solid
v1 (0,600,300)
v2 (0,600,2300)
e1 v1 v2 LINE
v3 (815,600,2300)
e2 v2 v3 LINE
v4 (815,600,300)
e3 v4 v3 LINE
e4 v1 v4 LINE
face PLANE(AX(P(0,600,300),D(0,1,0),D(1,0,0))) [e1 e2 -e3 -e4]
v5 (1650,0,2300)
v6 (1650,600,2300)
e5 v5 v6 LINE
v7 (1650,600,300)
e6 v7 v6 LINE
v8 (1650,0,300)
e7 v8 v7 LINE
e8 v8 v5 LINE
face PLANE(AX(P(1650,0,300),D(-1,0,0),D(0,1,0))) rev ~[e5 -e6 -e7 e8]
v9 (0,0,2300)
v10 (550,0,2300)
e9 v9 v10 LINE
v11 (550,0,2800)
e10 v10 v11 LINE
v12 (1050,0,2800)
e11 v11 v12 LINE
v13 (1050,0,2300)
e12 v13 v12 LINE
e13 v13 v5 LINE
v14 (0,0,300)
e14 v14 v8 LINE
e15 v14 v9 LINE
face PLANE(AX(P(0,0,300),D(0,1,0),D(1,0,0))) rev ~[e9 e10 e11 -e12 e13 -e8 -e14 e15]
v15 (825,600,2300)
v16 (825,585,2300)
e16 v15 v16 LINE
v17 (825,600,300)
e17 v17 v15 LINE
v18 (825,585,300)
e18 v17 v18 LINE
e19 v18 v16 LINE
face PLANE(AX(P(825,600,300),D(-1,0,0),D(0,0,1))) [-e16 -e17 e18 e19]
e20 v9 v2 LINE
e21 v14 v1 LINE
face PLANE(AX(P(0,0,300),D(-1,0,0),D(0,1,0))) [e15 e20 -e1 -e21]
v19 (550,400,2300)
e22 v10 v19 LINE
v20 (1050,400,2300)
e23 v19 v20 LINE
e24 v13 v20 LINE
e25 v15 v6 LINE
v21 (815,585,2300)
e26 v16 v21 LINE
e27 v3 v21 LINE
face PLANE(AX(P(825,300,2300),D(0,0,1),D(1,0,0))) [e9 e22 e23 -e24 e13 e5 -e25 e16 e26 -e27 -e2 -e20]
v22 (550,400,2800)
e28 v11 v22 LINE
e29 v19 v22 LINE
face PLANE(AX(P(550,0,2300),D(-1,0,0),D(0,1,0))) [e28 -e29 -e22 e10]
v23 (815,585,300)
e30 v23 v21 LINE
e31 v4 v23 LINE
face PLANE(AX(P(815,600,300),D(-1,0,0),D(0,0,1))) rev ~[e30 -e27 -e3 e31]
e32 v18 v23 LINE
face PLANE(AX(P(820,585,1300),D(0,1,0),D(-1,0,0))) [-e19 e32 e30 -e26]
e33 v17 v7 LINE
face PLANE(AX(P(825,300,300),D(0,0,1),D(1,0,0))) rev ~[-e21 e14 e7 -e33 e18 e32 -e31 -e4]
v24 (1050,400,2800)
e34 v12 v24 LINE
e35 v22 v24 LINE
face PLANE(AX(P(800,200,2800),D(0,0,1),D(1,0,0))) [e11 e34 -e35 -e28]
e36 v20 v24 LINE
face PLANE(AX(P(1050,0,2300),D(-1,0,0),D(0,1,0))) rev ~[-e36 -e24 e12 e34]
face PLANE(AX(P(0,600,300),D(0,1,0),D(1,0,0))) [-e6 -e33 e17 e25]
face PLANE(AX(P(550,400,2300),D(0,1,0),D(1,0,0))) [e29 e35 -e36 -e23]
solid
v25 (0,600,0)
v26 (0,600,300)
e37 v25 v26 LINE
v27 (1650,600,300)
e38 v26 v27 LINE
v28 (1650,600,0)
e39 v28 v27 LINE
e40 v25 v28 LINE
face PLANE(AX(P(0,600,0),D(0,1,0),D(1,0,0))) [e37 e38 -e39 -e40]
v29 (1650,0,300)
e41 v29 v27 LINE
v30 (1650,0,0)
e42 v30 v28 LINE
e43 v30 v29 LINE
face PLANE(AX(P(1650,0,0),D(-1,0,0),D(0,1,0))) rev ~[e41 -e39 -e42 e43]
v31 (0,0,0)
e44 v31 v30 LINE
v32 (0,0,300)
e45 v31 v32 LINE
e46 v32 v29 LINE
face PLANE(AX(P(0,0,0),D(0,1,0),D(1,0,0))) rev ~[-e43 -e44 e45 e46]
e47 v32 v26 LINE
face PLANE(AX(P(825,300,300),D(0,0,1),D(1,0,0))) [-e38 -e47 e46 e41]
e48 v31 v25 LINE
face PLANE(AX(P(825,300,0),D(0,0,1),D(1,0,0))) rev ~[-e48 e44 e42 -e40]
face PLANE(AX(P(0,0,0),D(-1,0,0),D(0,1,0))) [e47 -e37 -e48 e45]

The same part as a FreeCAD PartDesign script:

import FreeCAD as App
import Part
import Sketcher
Q = App.Units.Quantity


def add_polygon(sketch, points):
    """Adds a closed chain of lines whose ends are joined by coincident constraints."""
    first, n = sketch.GeometryCount, len(points)
    for a, b in zip(points, points[1:] + points[:1]):
        sketch.addGeometry(Part.LineSegment(App.Vector(*a, 0), App.Vector(*b, 0)), False)
    for i in range(n):
        sketch.addConstraint(Sketcher.Constraint("Coincident", first + i, 2, first + (i + 1) % n, 1))

doc = App.newDocument("Part")
params = doc.addObject("Spreadsheet::Sheet", "Params")
for row, (alias, value) in enumerate([
    ("sketch1_width", "1650 mm"),
    ("sketch1_height", "600 mm"),
    ("pad1_length", "300 mm"),
    ("sketch2_width", "1650 mm"),
    ("sketch2_height", "600 mm"),
    ("pad2_length", "2000 mm"),
    ("sketch3_width", "10 mm"),
    ("sketch3_height", "2000 mm"),
    ("pocket1_length", "15 mm"),
    ("sketch4_width", "500 mm"),
    ("sketch4_height", "400 mm"),
    ("pad3_length", "500 mm"),
], start=1):
    params.set(f"A{row}", alias)
    params.set(f"B{row}", "=" + value)
    params.setAlias(f"B{row}", alias)

body = doc.addObject("PartDesign::Body", "Body")

sketch1 = body.newObject("Sketcher::SketchObject", "Sketch")
sketch1.AttachmentSupport = (doc.getObject("XY_Plane"), [""])
sketch1.MapMode = "FlatFace"
add_polygon(sketch1, [(0, 600), (0, 0), (1650, 0), (1650, 600)])
sketch1.addConstraint([
    Sketcher.Constraint("Vertical", 0),
    Sketcher.Constraint("Horizontal", 1),
    Sketcher.Constraint("Vertical", 2),
    Sketcher.Constraint("Horizontal", 3),
    Sketcher.Constraint("Coincident", 0, 2, -1, 1),
    Sketcher.Constraint("DistanceX", 1, 1, 1, 2, Q("1650 mm")),
    Sketcher.Constraint("DistanceY", 0, 2, 0, 1, Q("600 mm")),
])
sketch1.setExpression("Constraints[9]", "Params.sketch1_width")
sketch1.setExpression("Constraints[10]", "Params.sketch1_height")
pad1 = body.newObject("PartDesign::Pad", "Pad")
pad1.Profile = sketch1
pad1.setExpression("Length", "Params.pad1_length")
body2 = doc.addObject("PartDesign::Body", "Body001")

sketch2 = body2.newObject("Sketcher::SketchObject", "Sketch001")
sketch2.AttachmentSupport = (doc.getObject("XY_Plane001"), [""])
sketch2.MapMode = "FlatFace"
sketch2.AttachmentOffset = App.Placement(App.Vector(0, 0, 300), App.Rotation())
add_polygon(sketch2, [(0, 600), (0, 0), (1650, 0), (1650, 600)])
sketch2.addConstraint([
    Sketcher.Constraint("Vertical", 0),
    Sketcher.Constraint("Horizontal", 1),
    Sketcher.Constraint("Vertical", 2),
    Sketcher.Constraint("Horizontal", 3),
    Sketcher.Constraint("Coincident", 0, 2, -1, 1),
    Sketcher.Constraint("DistanceX", 1, 1, 1, 2, Q("1650 mm")),
    Sketcher.Constraint("DistanceY", 0, 2, 0, 1, Q("600 mm")),
])
sketch2.setExpression("Constraints[9]", "Params.sketch2_width")
sketch2.setExpression("Constraints[10]", "Params.sketch2_height")
pad2 = body2.newObject("PartDesign::Pad", "Pad001")
pad2.Profile = sketch2
pad2.setExpression("Length", "Params.pad2_length")

sketch3 = body2.newObject("Sketcher::SketchObject", "Sketch002")
sketch3.AttachmentSupport = (doc.getObject("XZ_Plane001"), [""])
sketch3.MapMode = "FlatFace"
sketch3.AttachmentOffset = App.Placement(App.Vector(0, 0, -600), App.Rotation())
add_polygon(sketch3, [(825, 2300), (825, 300), (815, 300), (815, 2300)])
sketch3.addConstraint([
    Sketcher.Constraint("Vertical", 0),
    Sketcher.Constraint("Horizontal", 1),
    Sketcher.Constraint("Vertical", 2),
    Sketcher.Constraint("Horizontal", 3),
    Sketcher.Constraint("DistanceX", 1, 2, 1, 1, Q("10 mm")),
    Sketcher.Constraint("DistanceY", 0, 2, 0, 1, Q("2000 mm")),
    Sketcher.Constraint("DistanceX", -1, 1, 0, 2, Q("825 mm")),
    Sketcher.Constraint("DistanceY", -1, 1, 0, 2, Q("300 mm")),
])
sketch3.setExpression("Constraints[8]", "Params.sketch3_width")
sketch3.setExpression("Constraints[9]", "Params.sketch3_height")
pocket1 = body2.newObject("PartDesign::Pocket", "Pocket")
pocket1.Profile = sketch3
pocket1.setExpression("Length", "Params.pocket1_length")
pocket1.Reversed = True

sketch4 = body2.newObject("Sketcher::SketchObject", "Sketch003")
sketch4.AttachmentSupport = (doc.getObject("XY_Plane001"), [""])
sketch4.MapMode = "FlatFace"
sketch4.AttachmentOffset = App.Placement(App.Vector(0, 0, 2300), App.Rotation())
add_polygon(sketch4, [(550, 400), (550, 0), (1050, 0), (1050, 400)])
sketch4.addConstraint([
    Sketcher.Constraint("Vertical", 0),
    Sketcher.Constraint("Horizontal", 1),
    Sketcher.Constraint("Vertical", 2),
    Sketcher.Constraint("Horizontal", 3),
    Sketcher.Constraint("PointOnObject", 0, 2, -1),
    Sketcher.Constraint("DistanceX", 1, 1, 1, 2, Q("500 mm")),
    Sketcher.Constraint("DistanceY", 0, 2, 0, 1, Q("400 mm")),
    Sketcher.Constraint("DistanceX", -1, 1, 0, 2, Q("550 mm")),
])
sketch4.setExpression("Constraints[9]", "Params.sketch4_width")
sketch4.setExpression("Constraints[10]", "Params.sketch4_height")
pad3 = body2.newObject("PartDesign::Pad", "Pad002")
pad3.Profile = sketch4
pad3.setExpression("Length", "Params.pad3_length")

doc.recompute()
